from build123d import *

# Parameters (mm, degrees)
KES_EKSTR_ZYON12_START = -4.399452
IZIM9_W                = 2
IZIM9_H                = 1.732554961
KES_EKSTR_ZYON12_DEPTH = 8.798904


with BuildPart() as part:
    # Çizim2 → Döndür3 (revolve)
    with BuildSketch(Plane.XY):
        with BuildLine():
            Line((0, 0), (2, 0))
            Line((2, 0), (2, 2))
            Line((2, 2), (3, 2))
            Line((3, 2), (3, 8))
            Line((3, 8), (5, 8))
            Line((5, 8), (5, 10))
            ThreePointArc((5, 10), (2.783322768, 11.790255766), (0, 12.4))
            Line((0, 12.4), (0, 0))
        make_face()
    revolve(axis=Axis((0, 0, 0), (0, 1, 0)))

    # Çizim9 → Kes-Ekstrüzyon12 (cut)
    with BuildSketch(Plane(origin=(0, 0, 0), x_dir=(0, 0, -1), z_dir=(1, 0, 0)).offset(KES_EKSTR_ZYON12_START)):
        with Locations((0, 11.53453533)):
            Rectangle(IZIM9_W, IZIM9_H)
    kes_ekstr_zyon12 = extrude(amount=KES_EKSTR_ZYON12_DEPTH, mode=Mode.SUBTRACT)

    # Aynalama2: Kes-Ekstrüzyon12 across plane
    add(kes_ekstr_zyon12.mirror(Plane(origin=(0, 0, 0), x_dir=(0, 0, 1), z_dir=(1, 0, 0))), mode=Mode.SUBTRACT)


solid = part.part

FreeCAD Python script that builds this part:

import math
import FreeCAD as App
import Part
import Sketcher
from FreeCAD import Vector
Q = App.Units.Quantity

doc = App.newDocument("Part")
body = doc.addObject("PartDesign::Body", "Body")

sketch1 = body.newObject("Sketcher::SketchObject", "Sketch")
sketch1.AttachmentSupport = (doc.getObject("XY_Plane"), [""])
sketch1.MapMode = "FlatFace"
sketch1.addGeometry(Part.LineSegment(Vector(0, 0, 0), Vector(2, 0, 0)), False)
sketch1.addGeometry(Part.LineSegment(Vector(2, 0, 0), Vector(2, 2, 0)), False)
sketch1.addGeometry(Part.LineSegment(Vector(2, 2, 0), Vector(3, 2, 0)), False)
sketch1.addGeometry(Part.LineSegment(Vector(3, 2, 0), Vector(3, 8, 0)), False)
sketch1.addGeometry(Part.LineSegment(Vector(3, 8, 0), Vector(5, 8, 0)), False)
sketch1.addGeometry(Part.LineSegment(Vector(5, 8, 0), Vector(5, 10, 0)), False)
sketch1.addGeometry(Part.ArcOfCircle(Part.Circle(Vector(0.1, 6.2, 0), Vector(0, 0, 1), 6.2), math.radians(38), math.radians(91)), False)
sketch1.addGeometry(Part.LineSegment(Vector(0, 12.4, 0), Vector(0, 0, 0)), False)
sketch1.addConstraint(Sketcher.Constraint("Coincident", 0, 2, 1, 1))
sketch1.addConstraint(Sketcher.Constraint("Coincident", 1, 2, 2, 1))
sketch1.addConstraint(Sketcher.Constraint("Coincident", 2, 2, 3, 1))
sketch1.addConstraint(Sketcher.Constraint("Coincident", 3, 2, 4, 1))
sketch1.addConstraint(Sketcher.Constraint("Coincident", 4, 2, 5, 1))
sketch1.addConstraint(Sketcher.Constraint("Coincident", 5, 2, 6, 1))
sketch1.addConstraint(Sketcher.Constraint("Coincident", 6, 2, 7, 1))
sketch1.addConstraint(Sketcher.Constraint("Coincident", 7, 2, 0, 1))
sketch1.addConstraint(Sketcher.Constraint("Horizontal", 0))
sketch1.addConstraint(Sketcher.Constraint("Vertical", 1))
sketch1.addConstraint(Sketcher.Constraint("Horizontal", 2))
sketch1.addConstraint(Sketcher.Constraint("Vertical", 3))
sketch1.addConstraint(Sketcher.Constraint("Horizontal", 4))
sketch1.addConstraint(Sketcher.Constraint("Vertical", 5))
sketch1.addConstraint(Sketcher.Constraint("Vertical", 7))
sketch1.addConstraint(Sketcher.Constraint("Coincident", 7, 2, -1, 1))
sketch1.addConstraint(Sketcher.Constraint("Equal", 0, 4))
sketch1.addConstraint(Sketcher.Constraint("Equal", 4, 1))
sketch1.addConstraint(Sketcher.Constraint("Equal", 1, 5))
sketch1.addConstraint(Sketcher.Constraint("Radius", 6, Q("6.2 mm")))
sketch1.addConstraint(Sketcher.Constraint("DistanceX", 0, 1, 0, 2, Q("2 mm")))
sketch1.addConstraint(Sketcher.Constraint("DistanceX", 2, 1, 2, 2, Q("1 mm")))
sketch1.addConstraint(Sketcher.Constraint("DistanceY", 3, 1, 3, 2, Q("6 mm")))
sketch1.addConstraint(Sketcher.Constraint("DistanceY", 7, 2, 7, 1, Q("12.4 mm")))
revolution = body.newObject("PartDesign::Revolution", "Revolution")
revolution.Profile = sketch1
revolution.ReferenceAxis = (sketch1, ["V_Axis"])
revolution.Angle = 360

sketch2 = body.newObject("Sketcher::SketchObject", "Sketch001")
sketch2.AttachmentSupport = (doc.getObject("YZ_Plane"), [""])
sketch2.MapMode = "FlatFace"
sketch2.AttachmentOffset = App.Placement(Vector(0, 0, -4.399452), App.Rotation())
sketch2.addGeometry(Part.LineSegment(Vector(12.4, 1, 0), Vector(10.7, 1, 0)), False)
sketch2.addGeometry(Part.LineSegment(Vector(10.7, 1, 0), Vector(10.7, -1, 0)), False)
sketch2.addGeometry(Part.LineSegment(Vector(10.7, -1, 0), Vector(12.4, -1, 0)), False)
sketch2.addGeometry(Part.LineSegment(Vector(12.4, -1, 0), Vector(12.4, 1, 0)), False)
sketch2.addConstraint(Sketcher.Constraint("Coincident", 0, 2, 1, 1))
sketch2.addConstraint(Sketcher.Constraint("Coincident", 1, 2, 2, 1))
sketch2.addConstraint(Sketcher.Constraint("Coincident", 2, 2, 3, 1))
sketch2.addConstraint(Sketcher.Constraint("Coincident", 3, 2, 0, 1))
sketch2.addConstraint(Sketcher.Constraint("Horizontal", 0))
sketch2.addConstraint(Sketcher.Constraint("Vertical", 1))
sketch2.addConstraint(Sketcher.Constraint("Horizontal", 2))
sketch2.addConstraint(Sketcher.Constraint("Vertical", 3))
sketch2.addConstraint(Sketcher.Constraint("DistanceY", 1, 2, 1, 1, Q("2 mm")))
sketch2.addConstraint(Sketcher.Constraint("DistanceY", -1, 1, 0, 2, Q("1 mm")))
sketch2.addConstraint(Sketcher.Constraint("DistanceX", 0, 2, 0, 1, Q("1.732555 mm")))
sketch2.addConstraint(Sketcher.Constraint("DistanceX", -1, 1, 0, 2, Q("10.668258 mm")))
pocket1 = body.newObject("PartDesign::Pocket", "Pocket")
pocket1.Profile = sketch2
pocket1.Length = 8.798904
pocket1.Reversed = True
doc.recompute()

mirrored = body.newObject("PartDesign::Mirrored", "Mirrored")
mirrored.Originals = [pocket1]
mirrored.MirrorPlane = (doc.getObject("YZ_Plane"), [""])
body.Tip = mirrored

doc.recompute()
